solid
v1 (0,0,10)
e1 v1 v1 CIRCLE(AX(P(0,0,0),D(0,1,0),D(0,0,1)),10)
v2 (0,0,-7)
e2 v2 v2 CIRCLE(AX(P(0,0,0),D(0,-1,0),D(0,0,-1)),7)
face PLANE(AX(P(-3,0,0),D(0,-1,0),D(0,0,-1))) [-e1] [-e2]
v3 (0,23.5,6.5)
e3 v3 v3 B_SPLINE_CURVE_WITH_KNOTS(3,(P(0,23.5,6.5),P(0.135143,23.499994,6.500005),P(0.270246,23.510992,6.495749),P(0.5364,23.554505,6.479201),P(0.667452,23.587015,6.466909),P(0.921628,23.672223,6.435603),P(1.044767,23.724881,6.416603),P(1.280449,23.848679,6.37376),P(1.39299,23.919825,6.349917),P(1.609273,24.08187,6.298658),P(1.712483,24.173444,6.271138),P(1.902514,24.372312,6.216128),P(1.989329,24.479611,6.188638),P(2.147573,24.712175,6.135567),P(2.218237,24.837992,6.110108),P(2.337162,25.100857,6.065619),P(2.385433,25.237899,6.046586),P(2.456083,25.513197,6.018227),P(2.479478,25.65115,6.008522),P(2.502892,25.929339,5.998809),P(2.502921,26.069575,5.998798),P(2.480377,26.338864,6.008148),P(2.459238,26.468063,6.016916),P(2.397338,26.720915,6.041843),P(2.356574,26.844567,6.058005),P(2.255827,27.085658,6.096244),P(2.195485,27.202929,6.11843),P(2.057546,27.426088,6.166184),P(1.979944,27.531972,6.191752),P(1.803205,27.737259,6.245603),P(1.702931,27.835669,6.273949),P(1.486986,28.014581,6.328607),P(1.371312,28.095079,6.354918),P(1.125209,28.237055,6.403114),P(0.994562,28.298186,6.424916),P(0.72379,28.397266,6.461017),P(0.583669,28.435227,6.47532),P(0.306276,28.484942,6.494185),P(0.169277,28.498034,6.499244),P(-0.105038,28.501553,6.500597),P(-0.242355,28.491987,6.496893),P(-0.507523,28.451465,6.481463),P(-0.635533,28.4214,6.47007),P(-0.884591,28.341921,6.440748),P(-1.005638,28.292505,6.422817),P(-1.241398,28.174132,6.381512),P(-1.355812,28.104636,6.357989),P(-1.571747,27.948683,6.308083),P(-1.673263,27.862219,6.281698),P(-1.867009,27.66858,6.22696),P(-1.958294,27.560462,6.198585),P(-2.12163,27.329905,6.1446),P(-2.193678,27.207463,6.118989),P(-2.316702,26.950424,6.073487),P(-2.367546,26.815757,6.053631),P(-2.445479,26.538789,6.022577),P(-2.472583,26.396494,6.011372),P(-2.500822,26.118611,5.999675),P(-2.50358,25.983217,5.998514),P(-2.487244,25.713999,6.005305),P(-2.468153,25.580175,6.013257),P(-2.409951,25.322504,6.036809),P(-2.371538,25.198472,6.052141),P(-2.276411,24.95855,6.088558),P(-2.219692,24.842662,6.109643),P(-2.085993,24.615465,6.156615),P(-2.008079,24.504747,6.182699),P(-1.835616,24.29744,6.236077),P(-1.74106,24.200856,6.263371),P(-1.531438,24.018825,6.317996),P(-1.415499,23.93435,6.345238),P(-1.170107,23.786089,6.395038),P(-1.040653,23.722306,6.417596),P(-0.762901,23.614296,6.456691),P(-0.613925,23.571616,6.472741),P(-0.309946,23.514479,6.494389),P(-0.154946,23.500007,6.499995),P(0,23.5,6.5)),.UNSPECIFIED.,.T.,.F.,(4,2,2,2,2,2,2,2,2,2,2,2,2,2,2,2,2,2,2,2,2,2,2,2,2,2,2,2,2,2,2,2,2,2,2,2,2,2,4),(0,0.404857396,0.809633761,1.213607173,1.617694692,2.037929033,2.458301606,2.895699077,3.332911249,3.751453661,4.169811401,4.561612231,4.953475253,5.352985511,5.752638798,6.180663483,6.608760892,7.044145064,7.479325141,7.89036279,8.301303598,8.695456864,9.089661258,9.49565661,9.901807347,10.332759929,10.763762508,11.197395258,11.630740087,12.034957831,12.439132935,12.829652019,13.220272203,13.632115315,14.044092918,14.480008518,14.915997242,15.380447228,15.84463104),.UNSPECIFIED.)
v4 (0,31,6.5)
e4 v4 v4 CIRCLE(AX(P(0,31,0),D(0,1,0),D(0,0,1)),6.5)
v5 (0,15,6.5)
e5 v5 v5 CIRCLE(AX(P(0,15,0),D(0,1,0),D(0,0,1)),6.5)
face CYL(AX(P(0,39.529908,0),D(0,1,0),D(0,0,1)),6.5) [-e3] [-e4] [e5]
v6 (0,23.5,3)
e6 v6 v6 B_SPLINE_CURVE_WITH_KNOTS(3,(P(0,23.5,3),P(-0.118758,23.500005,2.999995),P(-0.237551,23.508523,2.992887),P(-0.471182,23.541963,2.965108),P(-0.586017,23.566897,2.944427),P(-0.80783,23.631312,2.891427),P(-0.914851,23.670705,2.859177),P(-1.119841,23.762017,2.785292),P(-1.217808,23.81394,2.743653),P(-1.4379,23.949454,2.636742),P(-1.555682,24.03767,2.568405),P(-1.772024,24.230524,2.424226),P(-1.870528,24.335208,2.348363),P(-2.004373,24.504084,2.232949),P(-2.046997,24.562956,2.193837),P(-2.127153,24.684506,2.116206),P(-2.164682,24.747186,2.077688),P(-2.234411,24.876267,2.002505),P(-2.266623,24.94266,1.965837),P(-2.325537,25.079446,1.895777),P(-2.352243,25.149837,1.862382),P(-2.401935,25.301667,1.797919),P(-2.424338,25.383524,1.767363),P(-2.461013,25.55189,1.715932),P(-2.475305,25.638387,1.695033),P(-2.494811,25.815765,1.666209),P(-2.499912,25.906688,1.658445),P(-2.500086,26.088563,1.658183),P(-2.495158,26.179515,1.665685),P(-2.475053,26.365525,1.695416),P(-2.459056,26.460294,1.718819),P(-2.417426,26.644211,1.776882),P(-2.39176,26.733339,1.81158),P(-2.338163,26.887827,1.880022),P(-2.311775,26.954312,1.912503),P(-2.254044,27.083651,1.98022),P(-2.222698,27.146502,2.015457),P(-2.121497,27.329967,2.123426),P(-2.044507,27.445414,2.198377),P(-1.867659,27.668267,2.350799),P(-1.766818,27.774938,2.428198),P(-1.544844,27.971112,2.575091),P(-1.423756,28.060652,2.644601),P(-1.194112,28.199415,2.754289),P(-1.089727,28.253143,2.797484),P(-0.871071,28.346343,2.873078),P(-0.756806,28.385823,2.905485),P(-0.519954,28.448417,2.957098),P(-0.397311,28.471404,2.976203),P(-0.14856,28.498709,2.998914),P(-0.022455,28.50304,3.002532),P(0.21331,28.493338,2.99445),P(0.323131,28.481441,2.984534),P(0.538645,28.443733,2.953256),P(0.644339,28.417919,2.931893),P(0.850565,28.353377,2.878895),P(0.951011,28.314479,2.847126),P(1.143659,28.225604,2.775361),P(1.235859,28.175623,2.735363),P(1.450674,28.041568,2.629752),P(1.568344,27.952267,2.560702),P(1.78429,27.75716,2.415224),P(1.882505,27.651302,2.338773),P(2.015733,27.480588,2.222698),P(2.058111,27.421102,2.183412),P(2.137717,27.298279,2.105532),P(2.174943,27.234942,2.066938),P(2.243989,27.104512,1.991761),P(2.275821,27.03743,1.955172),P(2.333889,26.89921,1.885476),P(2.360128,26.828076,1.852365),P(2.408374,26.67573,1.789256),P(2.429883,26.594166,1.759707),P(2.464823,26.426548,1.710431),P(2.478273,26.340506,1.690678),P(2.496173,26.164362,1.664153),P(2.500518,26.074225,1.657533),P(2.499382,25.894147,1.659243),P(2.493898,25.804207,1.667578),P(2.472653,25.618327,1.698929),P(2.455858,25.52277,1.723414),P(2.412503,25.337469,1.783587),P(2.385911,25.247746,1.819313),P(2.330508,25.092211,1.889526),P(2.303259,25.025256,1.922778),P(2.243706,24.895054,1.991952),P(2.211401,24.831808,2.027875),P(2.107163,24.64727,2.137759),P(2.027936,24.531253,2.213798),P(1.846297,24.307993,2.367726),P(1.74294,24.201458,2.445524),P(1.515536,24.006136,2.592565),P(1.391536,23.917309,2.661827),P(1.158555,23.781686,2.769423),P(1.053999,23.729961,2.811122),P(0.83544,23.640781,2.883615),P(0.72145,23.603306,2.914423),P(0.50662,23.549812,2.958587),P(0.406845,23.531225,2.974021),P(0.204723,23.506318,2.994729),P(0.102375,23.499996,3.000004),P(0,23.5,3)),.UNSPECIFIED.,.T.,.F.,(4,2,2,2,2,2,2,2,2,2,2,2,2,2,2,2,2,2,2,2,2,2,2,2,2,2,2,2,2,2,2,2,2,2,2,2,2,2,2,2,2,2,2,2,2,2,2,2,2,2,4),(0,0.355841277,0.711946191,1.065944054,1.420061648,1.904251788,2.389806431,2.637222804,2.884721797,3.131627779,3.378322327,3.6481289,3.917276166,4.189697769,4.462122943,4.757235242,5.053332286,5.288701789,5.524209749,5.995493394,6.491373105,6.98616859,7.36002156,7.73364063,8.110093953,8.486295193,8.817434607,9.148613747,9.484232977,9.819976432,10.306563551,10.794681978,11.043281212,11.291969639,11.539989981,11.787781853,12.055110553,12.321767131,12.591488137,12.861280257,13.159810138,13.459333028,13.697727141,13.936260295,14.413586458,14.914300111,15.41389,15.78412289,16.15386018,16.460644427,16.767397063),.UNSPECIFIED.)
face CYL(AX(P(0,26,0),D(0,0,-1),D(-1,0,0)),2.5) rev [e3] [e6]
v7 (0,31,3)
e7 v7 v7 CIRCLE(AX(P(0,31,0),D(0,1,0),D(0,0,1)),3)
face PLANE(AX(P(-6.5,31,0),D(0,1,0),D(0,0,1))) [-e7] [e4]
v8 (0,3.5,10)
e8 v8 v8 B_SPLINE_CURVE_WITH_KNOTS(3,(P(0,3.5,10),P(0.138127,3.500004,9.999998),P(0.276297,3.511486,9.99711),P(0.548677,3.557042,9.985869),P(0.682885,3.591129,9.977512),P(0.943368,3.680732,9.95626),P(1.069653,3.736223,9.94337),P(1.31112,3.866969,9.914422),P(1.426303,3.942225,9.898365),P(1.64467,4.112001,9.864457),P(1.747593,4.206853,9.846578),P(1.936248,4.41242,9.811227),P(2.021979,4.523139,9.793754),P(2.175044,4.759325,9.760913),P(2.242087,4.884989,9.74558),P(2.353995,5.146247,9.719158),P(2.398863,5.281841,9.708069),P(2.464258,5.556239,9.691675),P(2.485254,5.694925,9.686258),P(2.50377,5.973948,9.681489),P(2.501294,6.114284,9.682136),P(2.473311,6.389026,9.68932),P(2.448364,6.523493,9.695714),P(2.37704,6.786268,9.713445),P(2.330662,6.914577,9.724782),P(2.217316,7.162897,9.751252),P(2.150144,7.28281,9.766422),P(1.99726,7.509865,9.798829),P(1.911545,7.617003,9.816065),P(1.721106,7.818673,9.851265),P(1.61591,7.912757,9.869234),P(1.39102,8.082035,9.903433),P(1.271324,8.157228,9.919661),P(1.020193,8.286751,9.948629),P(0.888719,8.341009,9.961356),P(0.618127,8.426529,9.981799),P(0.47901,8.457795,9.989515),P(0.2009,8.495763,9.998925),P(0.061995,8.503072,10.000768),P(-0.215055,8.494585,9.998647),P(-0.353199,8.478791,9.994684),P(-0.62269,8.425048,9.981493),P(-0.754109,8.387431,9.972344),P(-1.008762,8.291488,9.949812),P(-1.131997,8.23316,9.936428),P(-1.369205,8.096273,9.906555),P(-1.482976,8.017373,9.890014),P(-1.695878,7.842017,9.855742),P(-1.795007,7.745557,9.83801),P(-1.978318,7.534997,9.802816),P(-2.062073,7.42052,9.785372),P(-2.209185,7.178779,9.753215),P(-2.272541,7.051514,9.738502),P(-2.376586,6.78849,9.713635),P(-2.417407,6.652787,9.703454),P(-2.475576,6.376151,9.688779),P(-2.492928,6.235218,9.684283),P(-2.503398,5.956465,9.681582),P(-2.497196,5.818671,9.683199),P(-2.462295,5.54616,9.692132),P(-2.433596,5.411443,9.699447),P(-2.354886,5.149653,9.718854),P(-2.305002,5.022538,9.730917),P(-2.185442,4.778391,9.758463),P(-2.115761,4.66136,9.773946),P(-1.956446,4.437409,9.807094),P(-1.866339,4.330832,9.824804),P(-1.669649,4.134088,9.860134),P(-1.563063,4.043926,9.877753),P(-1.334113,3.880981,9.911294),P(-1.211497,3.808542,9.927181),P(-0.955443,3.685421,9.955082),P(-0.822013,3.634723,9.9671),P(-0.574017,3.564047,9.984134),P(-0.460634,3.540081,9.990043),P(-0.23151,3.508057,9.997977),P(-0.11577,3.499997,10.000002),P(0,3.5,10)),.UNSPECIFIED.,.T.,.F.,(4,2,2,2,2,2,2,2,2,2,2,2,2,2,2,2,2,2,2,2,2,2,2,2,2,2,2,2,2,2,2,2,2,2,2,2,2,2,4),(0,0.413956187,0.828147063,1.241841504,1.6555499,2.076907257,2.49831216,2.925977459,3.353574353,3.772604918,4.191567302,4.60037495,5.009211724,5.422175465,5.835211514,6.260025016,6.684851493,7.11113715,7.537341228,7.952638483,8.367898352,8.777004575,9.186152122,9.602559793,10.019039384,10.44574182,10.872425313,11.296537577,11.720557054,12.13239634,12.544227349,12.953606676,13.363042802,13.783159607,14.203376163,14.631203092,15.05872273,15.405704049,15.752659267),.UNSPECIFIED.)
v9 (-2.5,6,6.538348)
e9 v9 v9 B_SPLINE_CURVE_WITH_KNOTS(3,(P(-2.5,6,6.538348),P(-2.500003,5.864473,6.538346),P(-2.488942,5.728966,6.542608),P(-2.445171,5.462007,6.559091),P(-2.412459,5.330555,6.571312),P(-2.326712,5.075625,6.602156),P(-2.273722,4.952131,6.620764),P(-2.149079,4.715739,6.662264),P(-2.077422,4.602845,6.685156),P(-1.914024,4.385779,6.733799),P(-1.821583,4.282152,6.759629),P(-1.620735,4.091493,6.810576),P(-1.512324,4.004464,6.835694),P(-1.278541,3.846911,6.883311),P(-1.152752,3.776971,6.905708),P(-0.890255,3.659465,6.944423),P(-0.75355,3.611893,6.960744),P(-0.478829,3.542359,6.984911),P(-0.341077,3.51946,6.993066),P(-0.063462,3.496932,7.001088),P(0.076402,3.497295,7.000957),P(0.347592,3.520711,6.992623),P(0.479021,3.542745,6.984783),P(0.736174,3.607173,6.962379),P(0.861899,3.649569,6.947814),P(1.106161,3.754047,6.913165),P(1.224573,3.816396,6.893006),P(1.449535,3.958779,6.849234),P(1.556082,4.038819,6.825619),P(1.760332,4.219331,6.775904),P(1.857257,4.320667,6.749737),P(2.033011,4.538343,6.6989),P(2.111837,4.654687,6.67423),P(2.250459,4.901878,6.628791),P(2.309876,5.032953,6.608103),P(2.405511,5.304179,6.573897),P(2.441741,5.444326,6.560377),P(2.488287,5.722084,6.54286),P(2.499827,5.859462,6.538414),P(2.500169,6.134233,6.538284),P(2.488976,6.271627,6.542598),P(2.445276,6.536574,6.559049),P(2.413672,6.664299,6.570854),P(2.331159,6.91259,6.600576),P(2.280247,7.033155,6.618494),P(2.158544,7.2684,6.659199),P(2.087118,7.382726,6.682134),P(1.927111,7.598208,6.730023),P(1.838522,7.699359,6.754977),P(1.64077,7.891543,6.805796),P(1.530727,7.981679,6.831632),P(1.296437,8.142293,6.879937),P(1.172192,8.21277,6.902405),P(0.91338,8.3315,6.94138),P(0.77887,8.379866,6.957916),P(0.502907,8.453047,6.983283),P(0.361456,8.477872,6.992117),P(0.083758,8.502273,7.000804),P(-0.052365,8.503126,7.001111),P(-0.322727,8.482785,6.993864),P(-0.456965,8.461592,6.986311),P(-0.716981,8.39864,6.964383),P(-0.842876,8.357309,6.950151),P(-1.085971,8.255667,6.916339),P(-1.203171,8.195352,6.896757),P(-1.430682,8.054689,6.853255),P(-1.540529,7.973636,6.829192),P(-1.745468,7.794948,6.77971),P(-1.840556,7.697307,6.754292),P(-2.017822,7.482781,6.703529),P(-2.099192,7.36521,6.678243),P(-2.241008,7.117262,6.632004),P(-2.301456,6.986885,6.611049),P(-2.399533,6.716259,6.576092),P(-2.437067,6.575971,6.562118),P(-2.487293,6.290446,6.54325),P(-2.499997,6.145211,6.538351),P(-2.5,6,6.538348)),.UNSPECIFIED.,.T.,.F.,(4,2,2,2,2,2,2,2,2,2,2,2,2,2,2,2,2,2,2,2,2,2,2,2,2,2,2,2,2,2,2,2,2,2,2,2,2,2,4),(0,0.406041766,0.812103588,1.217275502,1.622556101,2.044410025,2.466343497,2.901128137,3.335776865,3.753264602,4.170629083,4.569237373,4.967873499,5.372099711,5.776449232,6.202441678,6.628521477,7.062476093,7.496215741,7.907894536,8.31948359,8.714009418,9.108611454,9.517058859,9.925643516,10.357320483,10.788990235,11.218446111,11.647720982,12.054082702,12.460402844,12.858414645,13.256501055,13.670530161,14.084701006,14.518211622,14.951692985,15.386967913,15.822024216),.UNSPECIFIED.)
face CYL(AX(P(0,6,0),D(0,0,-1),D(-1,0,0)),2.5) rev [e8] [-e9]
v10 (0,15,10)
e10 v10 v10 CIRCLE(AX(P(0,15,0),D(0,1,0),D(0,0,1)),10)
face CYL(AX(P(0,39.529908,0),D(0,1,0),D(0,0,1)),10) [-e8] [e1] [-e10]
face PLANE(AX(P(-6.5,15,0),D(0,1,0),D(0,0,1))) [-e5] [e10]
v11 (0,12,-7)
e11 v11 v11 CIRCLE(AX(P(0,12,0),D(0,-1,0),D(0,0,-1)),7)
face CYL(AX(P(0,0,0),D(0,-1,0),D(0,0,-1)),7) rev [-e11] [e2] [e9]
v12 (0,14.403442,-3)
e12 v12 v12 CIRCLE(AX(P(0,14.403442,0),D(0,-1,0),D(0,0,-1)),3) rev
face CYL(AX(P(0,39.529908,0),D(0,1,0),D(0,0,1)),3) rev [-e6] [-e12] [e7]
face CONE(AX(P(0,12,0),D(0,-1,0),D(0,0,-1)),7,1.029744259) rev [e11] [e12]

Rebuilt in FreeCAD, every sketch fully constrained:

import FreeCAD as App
import Part
import Sketcher
Q = App.Units.Quantity

doc = App.newDocument("Part")
body = doc.addObject("PartDesign::Body", "Body")

# Sketch on XY plane
sketch1 = doc.addObject("Sketcher::SketchObject", "Sketch")
body.addObject(sketch1)
sketch1.AttachmentSupport = (doc.XY_Plane, [""])
sketch1.MapMode = "FlatFace"
sketch1.addGeometry(Part.LineSegment(App.Vector(-3, 31, 0), App.Vector(-6.5, 31, 0)), False)
sketch1.addGeometry(Part.LineSegment(App.Vector(-6.5, 31, 0), App.Vector(-6.5, 15, 0)), False)
sketch1.addGeometry(Part.LineSegment(App.Vector(-6.5, 15, 0), App.Vector(-10, 15, 0)), False)
sketch1.addGeometry(Part.LineSegment(App.Vector(-10, 15, 0), App.Vector(-10, 0, 0)), False)
sketch1.addGeometry(Part.LineSegment(App.Vector(-10, 0, 0), App.Vector(-3, 0, 0)), False)
sketch1.addGeometry(Part.LineSegment(App.Vector(-3, 0, 0), App.Vector(-3, 31, 0)), False)
sketch1.addConstraint(Sketcher.Constraint("Coincident", 0, 2, 1, 1))
sketch1.addConstraint(Sketcher.Constraint("Coincident", 1, 2, 2, 1))
sketch1.addConstraint(Sketcher.Constraint("Coincident", 2, 2, 3, 1))
sketch1.addConstraint(Sketcher.Constraint("Coincident", 3, 2, 4, 1))
sketch1.addConstraint(Sketcher.Constraint("Coincident", 4, 2, 5, 1))
sketch1.addConstraint(Sketcher.Constraint("Coincident", 5, 2, 0, 1))
sketch1.addConstraint(Sketcher.Constraint("Horizontal", 0))
sketch1.addConstraint(Sketcher.Constraint("Vertical", 1))
sketch1.addConstraint(Sketcher.Constraint("Horizontal", 2))
sketch1.addConstraint(Sketcher.Constraint("Vertical", 3))
sketch1.addConstraint(Sketcher.Constraint("Horizontal", 4))
sketch1.addConstraint(Sketcher.Constraint("Vertical", 5))
sketch1.addConstraint(Sketcher.Constraint("PointOnObject", 3, 2, -1))
sketch1.addConstraint(Sketcher.Constraint("Equal", 0, 2))
sketch1.addConstraint(Sketcher.Constraint("DistanceX", 4, 1, 4, 2, Q("7 mm")))
sketch1.addConstraint(Sketcher.Constraint("DistanceY", 1, 2, 1, 1, Q("16 mm")))
sketch1.addConstraint(Sketcher.Constraint("DistanceY", 3, 2, 3, 1, Q("15 mm")))
sketch1.addConstraint(Sketcher.Constraint("DistanceX", 2, 2, -1, 1, Q("10 mm")))
revolution = doc.addObject("PartDesign::Revolution", "Revolution")
body.addObject(revolution)
revolution.Profile = sketch1
revolution.ReferenceAxis = (sketch1, ["V_Axis"])
revolution.Angle = 360

# Sketch on XZ plane
sketch2 = doc.addObject("Sketcher::SketchObject", "Sketch001")
body.addObject(sketch2)
sketch2.AttachmentSupport = (doc.XZ_Plane, [""])
sketch2.MapMode = "FlatFace"
sketch2.addGeometry(Part.Circle(App.Vector(0, 0, 0), App.Vector(0, 0, 1), 7), False)
sketch2.addConstraint(Sketcher.Constraint("Coincident", 0, 3, -1, 1))
sketch2.addConstraint(Sketcher.Constraint("Diameter", 0, Q("14 mm")))
doc.recompute()
hole = doc.addObject("PartDesign::Hole", "Hole")
body.addObject(hole)
hole.Profile = sketch2
hole.ThreadType = "None"
hole.Diameter = 14
hole.DepthType = "Dimension"
hole.Depth = 12
hole.DrillPoint = "Angled"
hole.DrillPointAngle = 118

# Sketch on YZ plane
sketch3 = doc.addObject("Sketcher::SketchObject", "Sketch002")
body.addObject(sketch3)
sketch3.AttachmentSupport = (doc.YZ_Plane, [""])
sketch3.MapMode = "FlatFace"
sketch3.addGeometry(Part.LineSegment(App.Vector(6, 17.5, 0), App.Vector(6, 0, 0)), False)
sketch3.addGeometry(Part.LineSegment(App.Vector(6, 0, 0), App.Vector(8.5, 0, 0)), False)
sketch3.addGeometry(Part.LineSegment(App.Vector(8.5, 0, 0), App.Vector(8.5, 16, 0)), False)
sketch3.addGeometry(Part.LineSegment(App.Vector(8.5, 16, 0), App.Vector(6, 17.5, 0)), False)
sketch3.addGeometry(Part.LineSegment(App.Vector(6, 0, 0), App.Vector(6, 17.5, 0)), True)  # axis
sketch3.addConstraint(Sketcher.Constraint("Coincident", 0, 2, 1, 1))
sketch3.addConstraint(Sketcher.Constraint("Coincident", 1, 2, 2, 1))
sketch3.addConstraint(Sketcher.Constraint("Coincident", 2, 2, 3, 1))
sketch3.addConstraint(Sketcher.Constraint("Coincident", 3, 2, 0, 1))
sketch3.addConstraint(Sketcher.Constraint("Vertical", 0))
sketch3.addConstraint(Sketcher.Constraint("Horizontal", 1))
sketch3.addConstraint(Sketcher.Constraint("Vertical", 2))
sketch3.addConstraint(Sketcher.Constraint("Vertical", 4))
sketch3.addConstraint(Sketcher.Constraint("Coincident", 4, 1, 0, 2))
sketch3.addConstraint(Sketcher.Constraint("PointOnObject", 0, 2, -1))
sketch3.addConstraint(Sketcher.Constraint("Equal", 0, 4))
sketch3.addConstraint(Sketcher.Constraint("DistanceY", 2, 1, 2, 2, Q("16 mm")))
sketch3.addConstraint(Sketcher.Constraint("Angle", 3, Q("149 deg")))
sketch3.addConstraint(Sketcher.Constraint("DistanceX", 1, 1, 1, 2, Q("2.5 mm")))
sketch3.addConstraint(Sketcher.Constraint("DistanceX", -1, 1, 0, 2, Q("6 mm")))
groove = doc.addObject("PartDesign::Groove", "Groove")
body.addObject(groove)
groove.Profile = sketch3
groove.ReferenceAxis = (sketch3, ["Axis0"])
groove.Angle = 360
doc.recompute()

linearpattern = doc.addObject("PartDesign::LinearPattern", "LinearPattern")
body.addObject(linearpattern)
linearpattern.Originals = [groove]
linearpattern.Direction = (doc.Y_Axis, [""])
linearpattern.Mode = "offset"
linearpattern.Offset = 20
linearpattern.Occurrences = 2
body.Tip = linearpattern

doc.recompute()
